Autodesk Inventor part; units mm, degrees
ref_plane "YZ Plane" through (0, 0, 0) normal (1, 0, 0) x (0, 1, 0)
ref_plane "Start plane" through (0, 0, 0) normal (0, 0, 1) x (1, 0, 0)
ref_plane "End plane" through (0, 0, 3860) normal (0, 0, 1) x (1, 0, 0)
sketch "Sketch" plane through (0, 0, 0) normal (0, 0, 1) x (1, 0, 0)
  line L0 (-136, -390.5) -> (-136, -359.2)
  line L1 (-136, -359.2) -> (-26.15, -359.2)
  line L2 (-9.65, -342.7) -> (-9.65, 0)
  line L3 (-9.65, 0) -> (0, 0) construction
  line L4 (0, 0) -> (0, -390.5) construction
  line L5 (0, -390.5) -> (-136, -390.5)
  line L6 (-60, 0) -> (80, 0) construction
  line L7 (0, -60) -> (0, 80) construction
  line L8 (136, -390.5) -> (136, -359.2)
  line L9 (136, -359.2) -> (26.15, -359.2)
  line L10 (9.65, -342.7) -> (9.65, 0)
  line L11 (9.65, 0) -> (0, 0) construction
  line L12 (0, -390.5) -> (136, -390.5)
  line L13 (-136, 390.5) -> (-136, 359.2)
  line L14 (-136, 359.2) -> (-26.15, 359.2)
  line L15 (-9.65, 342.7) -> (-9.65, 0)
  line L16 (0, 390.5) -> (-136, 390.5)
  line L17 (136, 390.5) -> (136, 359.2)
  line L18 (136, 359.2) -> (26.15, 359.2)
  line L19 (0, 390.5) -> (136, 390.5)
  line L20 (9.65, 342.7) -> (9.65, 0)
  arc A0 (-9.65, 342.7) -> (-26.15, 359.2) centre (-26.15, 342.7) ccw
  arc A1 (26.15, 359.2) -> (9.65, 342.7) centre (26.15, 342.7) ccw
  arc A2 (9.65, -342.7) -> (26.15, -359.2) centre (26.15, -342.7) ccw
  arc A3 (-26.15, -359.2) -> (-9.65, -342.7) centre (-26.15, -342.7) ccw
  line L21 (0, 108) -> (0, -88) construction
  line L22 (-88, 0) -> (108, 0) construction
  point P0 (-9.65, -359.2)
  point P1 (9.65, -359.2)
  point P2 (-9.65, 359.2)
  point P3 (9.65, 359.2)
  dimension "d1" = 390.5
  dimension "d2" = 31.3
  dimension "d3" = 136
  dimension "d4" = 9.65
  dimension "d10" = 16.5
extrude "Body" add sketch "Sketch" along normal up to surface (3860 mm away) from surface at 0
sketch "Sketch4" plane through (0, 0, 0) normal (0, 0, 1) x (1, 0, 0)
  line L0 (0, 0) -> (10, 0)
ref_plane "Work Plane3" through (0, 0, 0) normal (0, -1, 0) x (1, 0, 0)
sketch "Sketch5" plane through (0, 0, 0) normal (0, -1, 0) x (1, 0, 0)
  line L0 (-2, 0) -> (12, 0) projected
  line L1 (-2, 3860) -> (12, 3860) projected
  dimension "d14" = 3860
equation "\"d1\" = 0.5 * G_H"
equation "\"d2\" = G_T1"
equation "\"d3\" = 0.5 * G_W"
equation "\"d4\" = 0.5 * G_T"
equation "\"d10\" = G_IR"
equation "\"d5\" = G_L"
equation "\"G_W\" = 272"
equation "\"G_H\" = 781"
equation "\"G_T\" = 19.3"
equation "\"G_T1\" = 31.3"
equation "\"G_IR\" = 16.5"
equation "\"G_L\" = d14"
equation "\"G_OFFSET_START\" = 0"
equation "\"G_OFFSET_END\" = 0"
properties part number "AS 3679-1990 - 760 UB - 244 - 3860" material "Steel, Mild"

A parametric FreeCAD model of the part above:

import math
import FreeCAD as App
import Part
import Sketcher
Q = App.Units.Quantity

doc = App.newDocument("Part")
body = doc.addObject("PartDesign::Body", "Body")

# Sketch on XY plane
sketch1 = body.newObject("Sketcher::SketchObject", "Sketch")
sketch1.AttachmentSupport = (doc.getObject("XY_Plane"), [""])
sketch1.MapMode = "FlatFace"
sketch1.addGeometry([
    Part.LineSegment(App.Vector(-136, -359, 0), App.Vector(-136, -390, 0)),  # 0
    Part.LineSegment(App.Vector(-136, -390, 0), App.Vector(136, -390, 0)),  # 1
    Part.LineSegment(App.Vector(136, -390, 0), App.Vector(136, -359, 0)),  # 2
    Part.LineSegment(App.Vector(136, -359, 0), App.Vector(26, -359, 0)),  # 3
    Part.ArcOfCircle(Part.Circle(App.Vector(26, -343, 0), App.Vector(0, 0, 1), 16), math.radians(180), math.radians(270)),  # 4
    Part.LineSegment(App.Vector(10, -343, 0), App.Vector(10, 343, 0)),  # 5
    Part.ArcOfCircle(Part.Circle(App.Vector(26, 343, 0), App.Vector(0, 0, 1), 16), math.radians(90), math.radians(180)),  # 6
    Part.LineSegment(App.Vector(26, 359, 0), App.Vector(136, 359, 0)),  # 7
    Part.LineSegment(App.Vector(136, 359, 0), App.Vector(136, 390, 0)),  # 8
    Part.LineSegment(App.Vector(136, 390, 0), App.Vector(-136, 390, 0)),  # 9
    Part.LineSegment(App.Vector(-136, 390, 0), App.Vector(-136, 359, 0)),  # 10
    Part.LineSegment(App.Vector(-136, 359, 0), App.Vector(-26, 359, 0)),  # 11
    Part.ArcOfCircle(Part.Circle(App.Vector(-26, 343, 0), App.Vector(0, 0, 1), 16), math.radians(0), math.radians(90)),  # 12
    Part.LineSegment(App.Vector(-10, 343, 0), App.Vector(-10, -343, 0)),  # 13
    Part.ArcOfCircle(Part.Circle(App.Vector(-26, -343, 0), App.Vector(0, 0, 1), 16), math.radians(-90), math.radians(0)),  # 14
    Part.LineSegment(App.Vector(-26, -359, 0), App.Vector(-136, -359, 0)),  # 15
], False)
sketch1.addConstraint([
    Sketcher.Constraint("Coincident", 0, 2, 1, 1),
    Sketcher.Constraint("Coincident", 1, 2, 2, 1),
    Sketcher.Constraint("Coincident", 2, 2, 3, 1),
    Sketcher.Constraint("Tangent", 3, 2, 4, 2),
    Sketcher.Constraint("Tangent", 4, 1, 5, 1),
    Sketcher.Constraint("Tangent", 5, 2, 6, 2),
    Sketcher.Constraint("Tangent", 6, 1, 7, 1),
    Sketcher.Constraint("Coincident", 7, 2, 8, 1),
    Sketcher.Constraint("Coincident", 8, 2, 9, 1),
    Sketcher.Constraint("Coincident", 9, 2, 10, 1),
    Sketcher.Constraint("Coincident", 10, 2, 11, 1),
    Sketcher.Constraint("Tangent", 11, 2, 12, 2),
    Sketcher.Constraint("Tangent", 12, 1, 13, 1),
    Sketcher.Constraint("Tangent", 13, 2, 14, 2),
    Sketcher.Constraint("Tangent", 14, 1, 15, 1),
    Sketcher.Constraint("Coincident", 15, 2, 0, 1),
    Sketcher.Constraint("Vertical", 0),
    Sketcher.Constraint("Horizontal", 1),
    Sketcher.Constraint("Vertical", 2),
    Sketcher.Constraint("Horizontal", 3),
    Sketcher.Constraint("Vertical", 5),
    Sketcher.Constraint("Horizontal", 7),
    Sketcher.Constraint("Vertical", 8),
    Sketcher.Constraint("Horizontal", 9),
    Sketcher.Constraint("Vertical", 10),
    Sketcher.Constraint("Horizontal", 11),
    Sketcher.Constraint("Vertical", 13),
    Sketcher.Constraint("Horizontal", 15),
    Sketcher.Constraint("Equal", 4, 6),
    Sketcher.Constraint("Equal", 6, 12),
    Sketcher.Constraint("Equal", 12, 14),
    Sketcher.Constraint("Symmetric", 4, 3, 12, 3, -1, 1),
    Sketcher.Constraint("Symmetric", 0, 2, 8, 2, -1, 1),
    Sketcher.Constraint("Symmetric", 7, 2, 10, 2, -2),
    Sketcher.Constraint("Symmetric", 2, 2, 15, 2, -2),
    Sketcher.Constraint("Radius", 4, Q("16.5 mm")),
    Sketcher.Constraint("DistanceY", 0, 2, 0, 1, Q("31.3 mm")),
    Sketcher.Constraint("DistanceX", 0, 2, -1, 1, Q("136 mm")),
    Sketcher.Constraint("DistanceY", 0, 2, -1, 1, Q("390.5 mm")),
    Sketcher.Constraint("DistanceX", -1, 1, 4, 1, Q("9.65 mm")),
])
pad1 = body.newObject("PartDesign::Pad", "Pad")
pad1.Profile = sketch1
pad1.Length = 3860

doc.recompute()
